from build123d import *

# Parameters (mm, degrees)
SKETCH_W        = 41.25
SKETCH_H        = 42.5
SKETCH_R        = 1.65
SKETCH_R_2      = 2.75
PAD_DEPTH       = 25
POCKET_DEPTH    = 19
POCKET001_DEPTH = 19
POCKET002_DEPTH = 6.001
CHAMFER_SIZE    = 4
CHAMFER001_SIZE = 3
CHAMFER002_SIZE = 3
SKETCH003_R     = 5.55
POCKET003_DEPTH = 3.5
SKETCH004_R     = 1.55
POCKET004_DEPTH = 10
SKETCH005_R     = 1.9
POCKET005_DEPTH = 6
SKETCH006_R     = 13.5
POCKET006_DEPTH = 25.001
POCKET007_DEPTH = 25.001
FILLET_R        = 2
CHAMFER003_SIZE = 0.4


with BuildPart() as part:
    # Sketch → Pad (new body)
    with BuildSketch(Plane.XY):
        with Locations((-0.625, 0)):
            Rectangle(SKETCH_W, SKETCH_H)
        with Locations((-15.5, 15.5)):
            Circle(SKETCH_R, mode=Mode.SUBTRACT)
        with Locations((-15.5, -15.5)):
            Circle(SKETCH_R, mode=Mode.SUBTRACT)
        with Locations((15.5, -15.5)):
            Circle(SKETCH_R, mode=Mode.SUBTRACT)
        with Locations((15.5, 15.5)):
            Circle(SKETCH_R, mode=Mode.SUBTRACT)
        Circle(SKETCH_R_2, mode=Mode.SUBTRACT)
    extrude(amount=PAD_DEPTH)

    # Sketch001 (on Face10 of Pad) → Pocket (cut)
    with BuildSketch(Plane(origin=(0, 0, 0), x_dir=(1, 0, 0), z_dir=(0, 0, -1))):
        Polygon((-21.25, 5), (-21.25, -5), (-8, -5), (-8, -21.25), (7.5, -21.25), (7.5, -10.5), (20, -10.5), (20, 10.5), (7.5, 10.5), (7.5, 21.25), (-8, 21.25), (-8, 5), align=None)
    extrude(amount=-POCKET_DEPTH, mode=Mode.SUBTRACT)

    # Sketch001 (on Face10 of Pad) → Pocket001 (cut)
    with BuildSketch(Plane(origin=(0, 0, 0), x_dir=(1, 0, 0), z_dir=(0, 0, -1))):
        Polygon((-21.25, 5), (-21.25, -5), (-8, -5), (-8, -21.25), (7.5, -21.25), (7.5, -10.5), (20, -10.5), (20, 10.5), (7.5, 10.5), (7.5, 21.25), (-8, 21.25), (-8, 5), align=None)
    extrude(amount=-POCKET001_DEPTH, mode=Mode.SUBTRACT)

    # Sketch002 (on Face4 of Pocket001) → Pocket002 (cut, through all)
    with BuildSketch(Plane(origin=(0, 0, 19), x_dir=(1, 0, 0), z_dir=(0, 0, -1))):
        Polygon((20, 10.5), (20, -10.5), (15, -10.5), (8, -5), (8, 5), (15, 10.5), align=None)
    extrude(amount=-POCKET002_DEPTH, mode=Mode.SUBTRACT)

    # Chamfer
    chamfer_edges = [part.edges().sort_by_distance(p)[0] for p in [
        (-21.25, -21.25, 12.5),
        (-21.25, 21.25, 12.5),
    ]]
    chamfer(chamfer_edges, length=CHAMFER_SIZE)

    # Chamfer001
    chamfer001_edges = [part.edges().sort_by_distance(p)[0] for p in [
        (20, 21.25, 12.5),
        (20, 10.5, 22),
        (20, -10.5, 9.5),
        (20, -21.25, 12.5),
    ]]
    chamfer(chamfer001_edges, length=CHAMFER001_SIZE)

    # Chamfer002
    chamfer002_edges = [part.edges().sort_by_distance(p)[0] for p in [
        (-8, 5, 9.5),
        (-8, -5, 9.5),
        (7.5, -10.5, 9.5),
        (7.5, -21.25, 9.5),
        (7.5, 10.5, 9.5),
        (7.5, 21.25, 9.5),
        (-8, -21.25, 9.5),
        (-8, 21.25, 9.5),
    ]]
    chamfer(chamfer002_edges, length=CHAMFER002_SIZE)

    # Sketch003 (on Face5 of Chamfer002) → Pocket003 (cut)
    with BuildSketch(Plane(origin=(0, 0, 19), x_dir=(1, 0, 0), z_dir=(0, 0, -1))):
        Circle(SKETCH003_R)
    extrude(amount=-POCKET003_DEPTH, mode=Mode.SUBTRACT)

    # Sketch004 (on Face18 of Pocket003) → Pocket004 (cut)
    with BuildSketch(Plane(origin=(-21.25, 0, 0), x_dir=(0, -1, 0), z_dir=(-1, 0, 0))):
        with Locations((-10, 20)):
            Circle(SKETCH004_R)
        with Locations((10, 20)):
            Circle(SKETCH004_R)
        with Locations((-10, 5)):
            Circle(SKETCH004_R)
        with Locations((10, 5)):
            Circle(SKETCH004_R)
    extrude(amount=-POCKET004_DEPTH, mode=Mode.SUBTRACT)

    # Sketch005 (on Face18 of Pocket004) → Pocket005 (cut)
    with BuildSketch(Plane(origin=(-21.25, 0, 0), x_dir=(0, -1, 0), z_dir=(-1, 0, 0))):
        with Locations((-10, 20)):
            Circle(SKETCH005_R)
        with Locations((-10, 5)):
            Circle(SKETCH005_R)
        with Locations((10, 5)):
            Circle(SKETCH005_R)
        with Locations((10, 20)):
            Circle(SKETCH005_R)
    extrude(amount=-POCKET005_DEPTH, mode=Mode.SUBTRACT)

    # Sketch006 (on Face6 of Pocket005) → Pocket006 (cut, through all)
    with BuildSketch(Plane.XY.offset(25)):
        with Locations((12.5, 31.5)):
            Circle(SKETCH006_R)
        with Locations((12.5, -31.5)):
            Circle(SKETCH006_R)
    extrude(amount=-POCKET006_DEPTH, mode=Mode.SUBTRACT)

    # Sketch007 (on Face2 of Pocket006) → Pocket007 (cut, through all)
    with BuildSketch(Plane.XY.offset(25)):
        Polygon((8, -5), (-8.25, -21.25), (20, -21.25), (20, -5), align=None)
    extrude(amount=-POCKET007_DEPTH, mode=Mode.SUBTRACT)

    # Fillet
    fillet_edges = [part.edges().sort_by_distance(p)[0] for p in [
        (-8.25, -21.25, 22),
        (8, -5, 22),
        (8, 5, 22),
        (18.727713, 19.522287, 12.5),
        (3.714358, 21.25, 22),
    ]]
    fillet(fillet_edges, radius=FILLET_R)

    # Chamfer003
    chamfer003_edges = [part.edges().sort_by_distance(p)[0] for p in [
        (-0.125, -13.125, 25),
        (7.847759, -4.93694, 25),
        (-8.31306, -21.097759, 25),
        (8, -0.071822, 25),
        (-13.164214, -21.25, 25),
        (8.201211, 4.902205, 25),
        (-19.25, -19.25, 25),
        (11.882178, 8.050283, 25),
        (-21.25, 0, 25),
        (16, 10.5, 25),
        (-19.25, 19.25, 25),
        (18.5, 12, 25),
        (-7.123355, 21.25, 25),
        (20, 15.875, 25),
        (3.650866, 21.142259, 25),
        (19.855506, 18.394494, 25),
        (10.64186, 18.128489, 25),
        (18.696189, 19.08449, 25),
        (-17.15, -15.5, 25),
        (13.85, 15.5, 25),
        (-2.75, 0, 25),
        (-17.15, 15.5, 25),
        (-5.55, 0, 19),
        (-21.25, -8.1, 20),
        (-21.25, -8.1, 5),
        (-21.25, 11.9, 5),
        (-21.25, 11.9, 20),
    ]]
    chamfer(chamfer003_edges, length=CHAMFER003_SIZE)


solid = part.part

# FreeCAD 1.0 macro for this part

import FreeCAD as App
import Part
import Sketcher

V = App.Vector
Q = App.Units.Quantity


def edges_at(feature, points):
    """Names of the edges that pass closest to the given points."""
    edges = feature.Shape.Edges
    near = lambda p: min(range(len(edges)), key=lambda i: edges[i].distToShape(Part.Vertex(*p))[0])
    return sorted({f"Edge{near(p) + 1}" for p in points})

doc = App.newDocument("Part")
body = doc.addObject("PartDesign::Body", "Body")

sketch1 = body.newObject("Sketcher::SketchObject", "Sketch")
sketch1.AttachmentSupport = (doc.getObject("XY_Plane"), [""])
sketch1.MapMode = "FlatFace"
sketch1.addGeometry(Part.LineSegment(V(-21.2, 21.2, 0), V(-21.2, -21.2, 0)), False)
sketch1.addGeometry(Part.LineSegment(V(-21.2, -21.2, 0), V(20, -21.2, 0)), False)
sketch1.addGeometry(Part.LineSegment(V(20, -21.2, 0), V(20, 21.2, 0)), False)
sketch1.addGeometry(Part.LineSegment(V(20, 21.2, 0), V(-21.2, 21.2, 0)), False)
sketch1.addGeometry(Part.Circle(V(-15.5, -15.5, 0), V(0, 0, 1), 1.6), False)
sketch1.addGeometry(Part.Circle(V(15.5, -15.5, 0), V(0, 0, 1), 1.6), False)
sketch1.addGeometry(Part.Circle(V(-15.5, 15.5, 0), V(0, 0, 1), 1.6), False)
sketch1.addGeometry(Part.Circle(V(0, 0, 0), V(0, 0, 1), 2.8), False)
sketch1.addGeometry(Part.Circle(V(15.5, 15.5, 0), V(0, 0, 1), 1.6), False)
sketch1.addConstraint(Sketcher.Constraint("Coincident", 0, 2, 1, 1))
sketch1.addConstraint(Sketcher.Constraint("Coincident", 1, 2, 2, 1))
sketch1.addConstraint(Sketcher.Constraint("Coincident", 2, 2, 3, 1))
sketch1.addConstraint(Sketcher.Constraint("Coincident", 3, 2, 0, 1))
sketch1.addConstraint(Sketcher.Constraint("Vertical", 0))
sketch1.addConstraint(Sketcher.Constraint("Horizontal", 1))
sketch1.addConstraint(Sketcher.Constraint("Vertical", 2))
sketch1.addConstraint(Sketcher.Constraint("Horizontal", 3))
sketch1.addConstraint(Sketcher.Constraint("Coincident", 7, 3, -1, 1))
sketch1.addConstraint(Sketcher.Constraint("Equal", 4, 5))
sketch1.addConstraint(Sketcher.Constraint("Equal", 5, 6))
sketch1.addConstraint(Sketcher.Constraint("Equal", 6, 8))
sketch1.addConstraint(Sketcher.Constraint("Symmetric", 5, 3, 6, 3, -1, 1))
sketch1.addConstraint(Sketcher.Constraint("Symmetric", 4, 3, 8, 3, -1, 1))
sketch1.addConstraint(Sketcher.Constraint("Symmetric", 4, 3, 5, 3, -2))
sketch1.addConstraint(Sketcher.Constraint("Diameter", 4, Q("3.3 mm")))
sketch1.addConstraint(Sketcher.Constraint("Diameter", 7, Q("5.5 mm")))
sketch1.addConstraint(Sketcher.Constraint("DistanceY", 0, 2, 0, 1, Q("42.5 mm")))
sketch1.addConstraint(Sketcher.Constraint("DistanceX", -1, 1, 1, 2, Q("20 mm")))
sketch1.addConstraint(Sketcher.Constraint("DistanceX", 4, 3, 5, 3, Q("31 mm")))
sketch1.addConstraint(Sketcher.Constraint("DistanceY", 4, 3, 6, 3, Q("31 mm")))
sketch1.addConstraint(Sketcher.Constraint("DistanceX", 1, 1, 1, 2, Q("41.25 mm")))
sketch1.addConstraint(Sketcher.Constraint("DistanceY", 0, 2, -1, 1, Q("21.25 mm")))
pad1 = body.newObject("PartDesign::Pad", "Pad")
pad1.Profile = sketch1
pad1.Length = 25

sketch2 = body.newObject("Sketcher::SketchObject", "Sketch001")
sketch2.AttachmentSupport = (doc.getObject("XY_Plane"), [""])
sketch2.MapMode = "FlatFace"
sketch2.addGeometry(Part.LineSegment(V(-21, -5, 0), V(-21, 5, 0)), False)
sketch2.addGeometry(Part.LineSegment(V(-21, 5, 0), V(-8, 5, 0)), False)
sketch2.addGeometry(Part.LineSegment(V(-8, 5, 0), V(-8, 21, 0)), False)
sketch2.addGeometry(Part.LineSegment(V(-8, 21, 0), V(8, 21, 0)), False)
sketch2.addGeometry(Part.LineSegment(V(8, 21, 0), V(8, 10, 0)), False)
sketch2.addGeometry(Part.LineSegment(V(8, 10, 0), V(20, 10, 0)), False)
sketch2.addGeometry(Part.LineSegment(V(20, 10, 0), V(20, -10, 0)), False)
sketch2.addGeometry(Part.LineSegment(V(20, -10, 0), V(8, -10, 0)), False)
sketch2.addGeometry(Part.LineSegment(V(8, -10, 0), V(8, -21, 0)), False)
sketch2.addGeometry(Part.LineSegment(V(8, -21, 0), V(-8, -21, 0)), False)
sketch2.addGeometry(Part.LineSegment(V(-8, -21, 0), V(-8, -5, 0)), False)
sketch2.addGeometry(Part.LineSegment(V(-8, -5, 0), V(-21, -5, 0)), False)
sketch2.addConstraint(Sketcher.Constraint("Coincident", 0, 2, 1, 1))
sketch2.addConstraint(Sketcher.Constraint("Coincident", 1, 2, 2, 1))
sketch2.addConstraint(Sketcher.Constraint("Coincident", 2, 2, 3, 1))
sketch2.addConstraint(Sketcher.Constraint("Coincident", 3, 2, 4, 1))
sketch2.addConstraint(Sketcher.Constraint("Coincident", 4, 2, 5, 1))
sketch2.addConstraint(Sketcher.Constraint("Coincident", 5, 2, 6, 1))
sketch2.addConstraint(Sketcher.Constraint("Coincident", 6, 2, 7, 1))
sketch2.addConstraint(Sketcher.Constraint("Coincident", 7, 2, 8, 1))
sketch2.addConstraint(Sketcher.Constraint("Coincident", 8, 2, 9, 1))
sketch2.addConstraint(Sketcher.Constraint("Coincident", 9, 2, 10, 1))
sketch2.addConstraint(Sketcher.Constraint("Coincident", 10, 2, 11, 1))
sketch2.addConstraint(Sketcher.Constraint("Coincident", 11, 2, 0, 1))
sketch2.addConstraint(Sketcher.Constraint("Vertical", 0))
sketch2.addConstraint(Sketcher.Constraint("Horizontal", 1))
sketch2.addConstraint(Sketcher.Constraint("Vertical", 2))
sketch2.addConstraint(Sketcher.Constraint("Horizontal", 3))
sketch2.addConstraint(Sketcher.Constraint("Vertical", 4))
sketch2.addConstraint(Sketcher.Constraint("Horizontal", 5))
sketch2.addConstraint(Sketcher.Constraint("Vertical", 6))
sketch2.addConstraint(Sketcher.Constraint("Horizontal", 7))
sketch2.addConstraint(Sketcher.Constraint("Vertical", 8))
sketch2.addConstraint(Sketcher.Constraint("Horizontal", 9))
sketch2.addConstraint(Sketcher.Constraint("Vertical", 10))
sketch2.addConstraint(Sketcher.Constraint("Horizontal", 11))
sketch2.addConstraint(Sketcher.Constraint("Symmetric", 4, 2, 7, 2, -1))
sketch2.addConstraint(Sketcher.Constraint("Symmetric", 2, 2, 9, 2, -1))
sketch2.addConstraint(Sketcher.Constraint("Equal", 2, 10))
sketch2.addConstraint(Sketcher.Constraint("DistanceY", 0, 1, 0, 2, Q("10 mm")))
sketch2.addConstraint(Sketcher.Constraint("DistanceY", 6, 2, 6, 1, Q("21 mm")))
sketch2.addConstraint(Sketcher.Constraint("DistanceX", 3, 1, 3, 2, Q("15.5 mm")))
sketch2.addConstraint(Sketcher.Constraint("DistanceX", 5, 1, 5, 2, Q("12.5 mm")))
sketch2.addConstraint(Sketcher.Constraint("DistanceX", 1, 2, -1, 1, Q("8 mm")))
sketch2.addConstraint(Sketcher.Constraint("DistanceX", 1, 1, 1, 2, Q("13.25 mm")))
sketch2.addConstraint(Sketcher.Constraint("DistanceY", 2, 1, 2, 2, Q("16.25 mm")))
pocket1 = body.newObject("PartDesign::Pocket", "Pocket")
pocket1.Profile = sketch2
pocket1.Length = 19
pocket1.Reversed = True

sketch3 = body.newObject("Sketcher::SketchObject", "Sketch002")
sketch3.AttachmentSupport = (doc.getObject("XY_Plane"), [""])
sketch3.MapMode = "FlatFace"
sketch3.addGeometry(Part.LineSegment(V(-21, -5, 0), V(-21, 5, 0)), False)
sketch3.addGeometry(Part.LineSegment(V(-21, 5, 0), V(-8, 5, 0)), False)
sketch3.addGeometry(Part.LineSegment(V(-8, 5, 0), V(-8, 21, 0)), False)
sketch3.addGeometry(Part.LineSegment(V(-8, 21, 0), V(8, 21, 0)), False)
sketch3.addGeometry(Part.LineSegment(V(8, 21, 0), V(8, 10, 0)), False)
sketch3.addGeometry(Part.LineSegment(V(8, 10, 0), V(20, 10, 0)), False)
sketch3.addGeometry(Part.LineSegment(V(20, 10, 0), V(20, -10, 0)), False)
sketch3.addGeometry(Part.LineSegment(V(20, -10, 0), V(8, -10, 0)), False)
sketch3.addGeometry(Part.LineSegment(V(8, -10, 0), V(8, -21, 0)), False)
sketch3.addGeometry(Part.LineSegment(V(8, -21, 0), V(-8, -21, 0)), False)
sketch3.addGeometry(Part.LineSegment(V(-8, -21, 0), V(-8, -5, 0)), False)
sketch3.addGeometry(Part.LineSegment(V(-8, -5, 0), V(-21, -5, 0)), False)
sketch3.addConstraint(Sketcher.Constraint("Coincident", 0, 2, 1, 1))
sketch3.addConstraint(Sketcher.Constraint("Coincident", 1, 2, 2, 1))
sketch3.addConstraint(Sketcher.Constraint("Coincident", 2, 2, 3, 1))
sketch3.addConstraint(Sketcher.Constraint("Coincident", 3, 2, 4, 1))
sketch3.addConstraint(Sketcher.Constraint("Coincident", 4, 2, 5, 1))
sketch3.addConstraint(Sketcher.Constraint("Coincident", 5, 2, 6, 1))
sketch3.addConstraint(Sketcher.Constraint("Coincident", 6, 2, 7, 1))
sketch3.addConstraint(Sketcher.Constraint("Coincident", 7, 2, 8, 1))
sketch3.addConstraint(Sketcher.Constraint("Coincident", 8, 2, 9, 1))
sketch3.addConstraint(Sketcher.Constraint("Coincident", 9, 2, 10, 1))
sketch3.addConstraint(Sketcher.Constraint("Coincident", 10, 2, 11, 1))
sketch3.addConstraint(Sketcher.Constraint("Coincident", 11, 2, 0, 1))
sketch3.addConstraint(Sketcher.Constraint("Vertical", 0))
sketch3.addConstraint(Sketcher.Constraint("Horizontal", 1))
sketch3.addConstraint(Sketcher.Constraint("Vertical", 2))
sketch3.addConstraint(Sketcher.Constraint("Horizontal", 3))
sketch3.addConstraint(Sketcher.Constraint("Vertical", 4))
sketch3.addConstraint(Sketcher.Constraint("Horizontal", 5))
sketch3.addConstraint(Sketcher.Constraint("Vertical", 6))
sketch3.addConstraint(Sketcher.Constraint("Horizontal", 7))
sketch3.addConstraint(Sketcher.Constraint("Vertical", 8))
sketch3.addConstraint(Sketcher.Constraint("Horizontal", 9))
sketch3.addConstraint(Sketcher.Constraint("Vertical", 10))
sketch3.addConstraint(Sketcher.Constraint("Horizontal", 11))
sketch3.addConstraint(Sketcher.Constraint("Symmetric", 4, 2, 7, 2, -1))
sketch3.addConstraint(Sketcher.Constraint("Symmetric", 2, 2, 9, 2, -1))
sketch3.addConstraint(Sketcher.Constraint("Equal", 2, 10))
sketch3.addConstraint(Sketcher.Constraint("DistanceY", 0, 1, 0, 2, Q("10 mm")))
sketch3.addConstraint(Sketcher.Constraint("DistanceY", 6, 2, 6, 1, Q("21 mm")))
sketch3.addConstraint(Sketcher.Constraint("DistanceX", 3, 1, 3, 2, Q("15.5 mm")))
sketch3.addConstraint(Sketcher.Constraint("DistanceX", 5, 1, 5, 2, Q("12.5 mm")))
sketch3.addConstraint(Sketcher.Constraint("DistanceX", 1, 2, -1, 1, Q("8 mm")))
sketch3.addConstraint(Sketcher.Constraint("DistanceX", 1, 1, 1, 2, Q("13.25 mm")))
sketch3.addConstraint(Sketcher.Constraint("DistanceY", 2, 1, 2, 2, Q("16.25 mm")))
pocket2 = body.newObject("PartDesign::Pocket", "Pocket001")
pocket2.Profile = sketch3
pocket2.Length = 19
pocket2.Reversed = True

sketch4 = body.newObject("Sketcher::SketchObject", "Sketch003")
sketch4.AttachmentSupport = (doc.getObject("XY_Plane"), [""])
sketch4.MapMode = "FlatFace"
sketch4.AttachmentOffset = App.Placement(V(0, 0, 19), App.Rotation())
sketch4.addGeometry(Part.LineSegment(V(20, 10, 0), V(20, -10, 0)), False)
sketch4.addGeometry(Part.LineSegment(V(20, -10, 0), V(15, -10, 0)), False)
sketch4.addGeometry(Part.LineSegment(V(15, -10, 0), V(8, -5, 0)), False)
sketch4.addGeometry(Part.LineSegment(V(8, -5, 0), V(8, 5, 0)), False)
sketch4.addGeometry(Part.LineSegment(V(8, 5, 0), V(15, 10, 0)), False)
sketch4.addGeometry(Part.LineSegment(V(15, 10, 0), V(20, 10, 0)), False)
sketch4.addConstraint(Sketcher.Constraint("Coincident", 0, 2, 1, 1))
sketch4.addConstraint(Sketcher.Constraint("Coincident", 1, 2, 2, 1))
sketch4.addConstraint(Sketcher.Constraint("Coincident", 2, 2, 3, 1))
sketch4.addConstraint(Sketcher.Constraint("Coincident", 3, 2, 4, 1))
sketch4.addConstraint(Sketcher.Constraint("Coincident", 4, 2, 5, 1))
sketch4.addConstraint(Sketcher.Constraint("Coincident", 5, 2, 0, 1))
sketch4.addConstraint(Sketcher.Constraint("Vertical", 0))
sketch4.addConstraint(Sketcher.Constraint("Horizontal", 1))
sketch4.addConstraint(Sketcher.Constraint("Vertical", 3))
sketch4.addConstraint(Sketcher.Constraint("Horizontal", 5))
sketch4.addConstraint(Sketcher.Constraint("Symmetric", 1, 2, 4, 2, -1))
sketch4.addConstraint(Sketcher.Constraint("Equal", 2, 4))
sketch4.addConstraint(Sketcher.Constraint("DistanceX", 1, 2, 1, 1, Q("5 mm")))
sketch4.addConstraint(Sketcher.Constraint("DistanceY", 0, 2, 0, 1, Q("21 mm")))
sketch4.addConstraint(Sketcher.Constraint("DistanceY", 3, 1, 3, 2, Q("10 mm")))
sketch4.addConstraint(Sketcher.Constraint("DistanceX", -1, 1, 0, 2, Q("20 mm")))
sketch4.addConstraint(Sketcher.Constraint("DistanceX", -1, 1, 2, 2, Q("8 mm")))
pocket3 = body.newObject("PartDesign::Pocket", "Pocket002")
pocket3.Profile = sketch4
pocket3.Type = "ThroughAll"
pocket3.Reversed = True
doc.recompute()

chamfer = body.newObject("PartDesign::Chamfer", "Chamfer")
chamfer.Base = (pocket3, edges_at(pocket3, [(-21.25, -21.25, 12.5), (-21.25, 21.25, 12.5)]))
chamfer.Size = 4
doc.recompute()

chamfer2 = body.newObject("PartDesign::Chamfer", "Chamfer001")
chamfer2.Base = (chamfer, edges_at(chamfer, [
    (20, 21.25, 12.5),
    (20, 10.5, 12.5),
    (20, -10.5, 12.5),
    (20, -21.25, 12.5),
]))
chamfer2.Size = 3
doc.recompute()

chamfer3 = body.newObject("PartDesign::Chamfer", "Chamfer002")
chamfer3.Base = (chamfer2, edges_at(chamfer2, [
    (-8, 5, 9.5),
    (-8, -5, 9.5),
    (7.5, -10.5, 9.5),
    (7.5, -21.25, 9.5),
    (7.5, 10.5, 9.5),
    (7.5, 21.25, 9.5),
    (-8, -21.25, 9.5),
    (-8, 21.25, 9.5),
]))
chamfer3.Size = 3

sketch5 = body.newObject("Sketcher::SketchObject", "Sketch004")
sketch5.AttachmentSupport = (doc.getObject("XY_Plane"), [""])
sketch5.MapMode = "FlatFace"
sketch5.AttachmentOffset = App.Placement(V(0, 0, 19), App.Rotation())
sketch5.addGeometry(Part.Circle(V(0, 0, 0), V(0, 0, 1), 6), False)
sketch5.addConstraint(Sketcher.Constraint("Coincident", 0, 3, -1, 1))
sketch5.addConstraint(Sketcher.Constraint("Diameter", 0, Q("11.1 mm")))
pocket4 = body.newObject("PartDesign::Pocket", "Pocket003")
pocket4.Profile = sketch5
pocket4.Length = 3.5
pocket4.Reversed = True

sketch6 = body.newObject("Sketcher::SketchObject", "Sketch005")
sketch6.AttachmentSupport = (doc.getObject("YZ_Plane"), [""])
sketch6.MapMode = "FlatFace"
sketch6.AttachmentOffset = App.Placement(V(0, 0, -21.25), App.Rotation())
sketch6.addGeometry(Part.Circle(V(10, 20, 0), V(0, 0, 1), 1.6), False)
sketch6.addGeometry(Part.Circle(V(-10, 20, 0), V(0, 0, 1), 1.6), False)
sketch6.addGeometry(Part.Circle(V(10, 5, 0), V(0, 0, 1), 1.6), False)
sketch6.addGeometry(Part.Circle(V(-10, 5, 0), V(0, 0, 1), 1.6), False)
sketch6.addConstraint(Sketcher.Constraint("Equal", 0, 1))
sketch6.addConstraint(Sketcher.Constraint("Equal", 1, 2))
sketch6.addConstraint(Sketcher.Constraint("Equal", 2, 3))
sketch6.addConstraint(Sketcher.Constraint("Symmetric", 0, 3, 1, 3, -2))
sketch6.addConstraint(Sketcher.Constraint("Symmetric", 2, 3, 3, 3, -2))
sketch6.addConstraint(Sketcher.Constraint("Vertical", 0, 3, 2, 3))
sketch6.addConstraint(Sketcher.Constraint("Diameter", 0, Q("3.1 mm")))
sketch6.addConstraint(Sketcher.Constraint("DistanceX", -1, 1, 0, 3, Q("10 mm")))
sketch6.addConstraint(Sketcher.Constraint("DistanceY", -1, 1, 0, 3, Q("20 mm")))
sketch6.addConstraint(Sketcher.Constraint("DistanceY", -1, 1, 2, 3, Q("5 mm")))
pocket5 = body.newObject("PartDesign::Pocket", "Pocket004")
pocket5.Profile = sketch6
pocket5.Length = 10
pocket5.Reversed = True

sketch7 = body.newObject("Sketcher::SketchObject", "Sketch006")
sketch7.AttachmentSupport = (doc.getObject("YZ_Plane"), [""])
sketch7.MapMode = "FlatFace"
sketch7.AttachmentOffset = App.Placement(V(0, 0, -21.25), App.Rotation())
sketch7.addGeometry(Part.Circle(V(10, 20, 0), V(0, 0, 1), 1.9), False)
sketch7.addGeometry(Part.Circle(V(10, 5, 0), V(0, 0, 1), 1.9), False)
sketch7.addGeometry(Part.Circle(V(-10, 5, 0), V(0, 0, 1), 1.9), False)
sketch7.addGeometry(Part.Circle(V(-10, 20, 0), V(0, 0, 1), 1.9), False)
sketch7.addConstraint(Sketcher.Constraint("Equal", 0, 1))
sketch7.addConstraint(Sketcher.Constraint("Equal", 1, 2))
sketch7.addConstraint(Sketcher.Constraint("Equal", 2, 3))
sketch7.addConstraint(Sketcher.Constraint("Symmetric", 1, 3, 2, 3, -2))
sketch7.addConstraint(Sketcher.Constraint("Symmetric", 0, 3, 3, 3, -2))
sketch7.addConstraint(Sketcher.Constraint("Vertical", 0, 3, 1, 3))
sketch7.addConstraint(Sketcher.Constraint("Diameter", 0, Q("3.8 mm")))
sketch7.addConstraint(Sketcher.Constraint("DistanceX", -1, 1, 0, 3, Q("10 mm")))
sketch7.addConstraint(Sketcher.Constraint("DistanceY", -1, 1, 0, 3, Q("20 mm")))
sketch7.addConstraint(Sketcher.Constraint("DistanceY", -1, 1, 1, 3, Q("5 mm")))
pocket6 = body.newObject("PartDesign::Pocket", "Pocket005")
pocket6.Profile = sketch7
pocket6.Length = 6
pocket6.Reversed = True

sketch8 = body.newObject("Sketcher::SketchObject", "Sketch007")
sketch8.AttachmentSupport = (doc.getObject("XY_Plane"), [""])
sketch8.MapMode = "FlatFace"
sketch8.AttachmentOffset = App.Placement(V(0, 0, 25), App.Rotation())
sketch8.addGeometry(Part.Circle(V(12, 32, 0), V(0, 0, 1), 14), False)
sketch8.addGeometry(Part.Circle(V(12, -32, 0), V(0, 0, 1), 14), False)
sketch8.addConstraint(Sketcher.Constraint("Equal", 0, 1))
sketch8.addConstraint(Sketcher.Constraint("Symmetric", 0, 3, 1, 3, -1))
sketch8.addConstraint(Sketcher.Constraint("Diameter", 0, Q("27 mm")))
sketch8.addConstraint(Sketcher.Constraint("DistanceY", 1, 3, 0, 3, Q("63 mm")))
sketch8.addConstraint(Sketcher.Constraint("DistanceX", -1, 1, 0, 3, Q("12.5 mm")))
pocket7 = body.newObject("PartDesign::Pocket", "Pocket006")
pocket7.Profile = sketch8
pocket7.Type = "ThroughAll"

sketch9 = body.newObject("Sketcher::SketchObject", "Sketch008")
sketch9.AttachmentSupport = (doc.getObject("XY_Plane"), [""])
sketch9.MapMode = "FlatFace"
sketch9.AttachmentOffset = App.Placement(V(0, 0, 25), App.Rotation())
sketch9.addGeometry(Part.LineSegment(V(8, -5, 0), V(-8, -21, 0)), False)
sketch9.addGeometry(Part.LineSegment(V(-8, -21, 0), V(20, -21, 0)), False)
sketch9.addGeometry(Part.LineSegment(V(20, -21, 0), V(20, -5, 0)), False)
sketch9.addGeometry(Part.LineSegment(V(20, -5, 0), V(8, -5, 0)), False)
sketch9.addConstraint(Sketcher.Constraint("Coincident", 0, 2, 1, 1))
sketch9.addConstraint(Sketcher.Constraint("Coincident", 1, 2, 2, 1))
sketch9.addConstraint(Sketcher.Constraint("Coincident", 2, 2, 3, 1))
sketch9.addConstraint(Sketcher.Constraint("Coincident", 3, 2, 0, 1))
sketch9.addConstraint(Sketcher.Constraint("Horizontal", 1))
sketch9.addConstraint(Sketcher.Constraint("Vertical", 2))
sketch9.addConstraint(Sketcher.Constraint("Horizontal", 3))
sketch9.addConstraint(Sketcher.Constraint("DistanceX", 3, 2, 3, 1, Q("12 mm")))
sketch9.addConstraint(Sketcher.Constraint("Angle", 0, Q("-135 deg")))
sketch9.addConstraint(Sketcher.Constraint("DistanceX", -1, 1, 1, 2, Q("20 mm")))
sketch9.addConstraint(Sketcher.Constraint("DistanceY", 2, 2, -1, 1, Q("5 mm")))
sketch9.addConstraint(Sketcher.Constraint("DistanceX", 1, 1, 1, 2, Q("28.25 mm")))
pocket8 = body.newObject("PartDesign::Pocket", "Pocket007")
pocket8.Profile = sketch9
pocket8.Type = "ThroughAll"
doc.recompute()

fillet = body.newObject("PartDesign::Fillet", "Fillet")
fillet.Base = (pocket8, edges_at(pocket8, [
    (-8.25, -21.25, 22),
    (8, -5, 22),
    (8, 5, 22),
    (18.728, 19.522, 12.5),
    (3.714, 21.25, 22),
]))
fillet.Radius = 2
doc.recompute()

chamfer4 = body.newObject("PartDesign::Chamfer", "Chamfer003")
chamfer4.Base = (fillet, edges_at(fillet, [
    (-0.125, -13.125, 25),
    (7.848, -4.937, 25),
    (-8.313, -21.098, 25),
    (8, -0.072, 25),
    (-13.164, -21.25, 25),
    (8.201, 4.902, 25),
    (-19.25, -19.25, 25),
    (11.882, 8.05, 25),
    (-21.25, 0, 25),
    (16, 10.5, 25),
    (-19.25, 19.25, 25),
    (18.5, 12, 25),
    (-7.123, 21.25, 25),
    (20, 15.875, 25),
    (3.651, 21.142, 25),
    (19.856, 18.394, 25),
    (10.642, 18.128, 25),
    (18.696, 19.084, 25),
    (-17.15, -15.5, 25),
    (13.85, 15.5, 25),
    (-2.75, 0, 25),
    (-17.15, 15.5, 25),
    (-5.55, 0, 19),
    (-21.25, -8.1, 20),
    (-21.25, -8.1, 5),
    (-21.25, 11.9, 5),
    (-21.25, 11.9, 20),
]))
chamfer4.Size = 0.4

doc.recompute()
